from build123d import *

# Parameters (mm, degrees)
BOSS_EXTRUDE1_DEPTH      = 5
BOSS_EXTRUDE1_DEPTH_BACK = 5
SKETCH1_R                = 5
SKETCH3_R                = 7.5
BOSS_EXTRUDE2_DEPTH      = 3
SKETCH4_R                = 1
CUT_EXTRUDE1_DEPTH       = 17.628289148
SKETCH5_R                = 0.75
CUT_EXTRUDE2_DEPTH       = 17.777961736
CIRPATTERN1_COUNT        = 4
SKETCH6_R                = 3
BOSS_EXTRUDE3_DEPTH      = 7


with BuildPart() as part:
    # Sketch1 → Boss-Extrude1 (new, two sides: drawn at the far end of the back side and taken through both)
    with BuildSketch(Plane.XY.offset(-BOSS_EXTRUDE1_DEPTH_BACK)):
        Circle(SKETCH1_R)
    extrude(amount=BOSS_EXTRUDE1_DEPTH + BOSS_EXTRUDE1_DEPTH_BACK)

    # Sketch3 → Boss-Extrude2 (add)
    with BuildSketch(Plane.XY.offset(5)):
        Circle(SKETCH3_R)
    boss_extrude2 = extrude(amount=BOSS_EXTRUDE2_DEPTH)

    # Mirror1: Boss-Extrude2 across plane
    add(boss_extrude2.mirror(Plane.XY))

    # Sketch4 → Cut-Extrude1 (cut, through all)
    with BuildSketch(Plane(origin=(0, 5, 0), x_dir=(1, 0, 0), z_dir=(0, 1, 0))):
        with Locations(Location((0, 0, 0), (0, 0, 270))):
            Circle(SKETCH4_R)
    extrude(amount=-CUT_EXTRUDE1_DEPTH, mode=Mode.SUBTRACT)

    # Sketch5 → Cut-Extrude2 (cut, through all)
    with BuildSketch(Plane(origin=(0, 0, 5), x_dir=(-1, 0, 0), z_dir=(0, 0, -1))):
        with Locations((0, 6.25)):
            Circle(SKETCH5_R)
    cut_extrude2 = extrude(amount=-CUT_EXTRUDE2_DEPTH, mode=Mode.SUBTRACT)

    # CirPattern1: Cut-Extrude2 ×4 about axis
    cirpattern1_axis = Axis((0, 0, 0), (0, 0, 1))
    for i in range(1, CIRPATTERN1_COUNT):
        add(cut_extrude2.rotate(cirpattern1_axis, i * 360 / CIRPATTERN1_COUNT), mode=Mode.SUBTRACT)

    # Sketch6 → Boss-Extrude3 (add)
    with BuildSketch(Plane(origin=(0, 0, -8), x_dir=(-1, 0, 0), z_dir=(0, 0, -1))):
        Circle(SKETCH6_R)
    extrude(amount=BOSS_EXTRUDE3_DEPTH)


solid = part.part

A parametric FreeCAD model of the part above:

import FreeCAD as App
import Part
import Sketcher
from FreeCAD import Vector

doc = App.newDocument("Part")
body = doc.addObject("PartDesign::Body", "Body")

sketch1 = body.newObject("Sketcher::SketchObject", "Sketch")
sketch1.AttachmentSupport = (doc.getObject("XY_Plane"), [""])
sketch1.MapMode = "FlatFace"
sketch1.addGeometry(Part.Circle(Vector(0, 0, 0), Vector(0, 0, 1), 5), False)
sketch1.addConstraint([
    Sketcher.Constraint("Coincident", 0, 3, -1, 1),
    Sketcher.Constraint("Diameter", 0, 10.0),
])
pad1 = body.newObject("PartDesign::Pad", "Pad")
pad1.Profile = sketch1
pad1.Type = "TwoLengths"
pad1.Length = 5
pad1.Length2 = 5

sketch2 = body.newObject("Sketcher::SketchObject", "Sketch001")
sketch2.AttachmentSupport = (doc.getObject("XY_Plane"), [""])
sketch2.MapMode = "FlatFace"
sketch2.AttachmentOffset = App.Placement(Vector(0, 0, 5), App.Rotation())
sketch2.addGeometry(Part.Circle(Vector(0, 0, 0), Vector(0, 0, 1), 8), False)
sketch2.addConstraint([
    Sketcher.Constraint("Coincident", 0, 3, -1, 1),
    Sketcher.Constraint("Diameter", 0, 15.0),
])
pad2 = body.newObject("PartDesign::Pad", "Pad001")
pad2.Profile = sketch2
pad2.Length = 3
doc.recompute()

mirrored = body.newObject("PartDesign::Mirrored", "Mirrored")
mirrored.Originals = [pad2]
mirrored.MirrorPlane = (doc.getObject("XY_Plane"), [""])
body.Tip = mirrored

sketch3 = body.newObject("Sketcher::SketchObject", "Sketch002")
sketch3.AttachmentSupport = (doc.getObject("XZ_Plane"), [""])
sketch3.MapMode = "FlatFace"
sketch3.AttachmentOffset = App.Placement(Vector(0, 0, -5), App.Rotation())
sketch3.addGeometry(Part.Circle(Vector(0, 0, 0), Vector(0, 0, 1), 1), False)
sketch3.addConstraint([
    Sketcher.Constraint("Coincident", 0, 3, -1, 1),
    Sketcher.Constraint("Diameter", 0, 2.0),
])
pocket1 = body.newObject("PartDesign::Pocket", "Pocket")
pocket1.Profile = sketch3
pocket1.Type = "ThroughAll"
pocket1.Reversed = True

sketch4 = body.newObject("Sketcher::SketchObject", "Sketch003")
sketch4.AttachmentSupport = (doc.getObject("XY_Plane"), [""])
sketch4.MapMode = "FlatFace"
sketch4.AttachmentOffset = App.Placement(Vector(0, 0, 5), App.Rotation())
sketch4.addGeometry(Part.Circle(Vector(0, 6.2, 0), Vector(0, 0, 1), 0.8), False)
sketch4.addConstraint([
    Sketcher.Constraint("PointOnObject", 0, 3, -2),
    Sketcher.Constraint("Diameter", 0, 1.5),
    Sketcher.Constraint("DistanceY", -1, 1, 0, 3, 6.25),
])
pocket2 = body.newObject("PartDesign::Pocket", "Pocket001")
pocket2.Profile = sketch4
pocket2.Type = "ThroughAll"
pocket2.Reversed = True
doc.recompute()

polarpattern = body.newObject("PartDesign::PolarPattern", "PolarPattern")
polarpattern.Originals = [pocket2]
polarpattern.Axis = (doc.getObject("Z_Axis"), [""])
polarpattern.Angle = 360
polarpattern.Occurrences = 4
body.Tip = polarpattern

sketch5 = body.newObject("Sketcher::SketchObject", "Sketch004")
sketch5.AttachmentSupport = (doc.getObject("XY_Plane"), [""])
sketch5.MapMode = "FlatFace"
sketch5.AttachmentOffset = App.Placement(Vector(0, 0, -8), App.Rotation())
sketch5.addGeometry(Part.Circle(Vector(0, 0, 0), Vector(0, 0, 1), 3), False)
sketch5.addConstraint([
    Sketcher.Constraint("Coincident", 0, 3, -1, 1),
    Sketcher.Constraint("Diameter", 0, 6.0),
])
pad3 = body.newObject("PartDesign::Pad", "Pad002")
pad3.Profile = sketch5
pad3.Length = 7
pad3.Reversed = True

doc.recompute()
